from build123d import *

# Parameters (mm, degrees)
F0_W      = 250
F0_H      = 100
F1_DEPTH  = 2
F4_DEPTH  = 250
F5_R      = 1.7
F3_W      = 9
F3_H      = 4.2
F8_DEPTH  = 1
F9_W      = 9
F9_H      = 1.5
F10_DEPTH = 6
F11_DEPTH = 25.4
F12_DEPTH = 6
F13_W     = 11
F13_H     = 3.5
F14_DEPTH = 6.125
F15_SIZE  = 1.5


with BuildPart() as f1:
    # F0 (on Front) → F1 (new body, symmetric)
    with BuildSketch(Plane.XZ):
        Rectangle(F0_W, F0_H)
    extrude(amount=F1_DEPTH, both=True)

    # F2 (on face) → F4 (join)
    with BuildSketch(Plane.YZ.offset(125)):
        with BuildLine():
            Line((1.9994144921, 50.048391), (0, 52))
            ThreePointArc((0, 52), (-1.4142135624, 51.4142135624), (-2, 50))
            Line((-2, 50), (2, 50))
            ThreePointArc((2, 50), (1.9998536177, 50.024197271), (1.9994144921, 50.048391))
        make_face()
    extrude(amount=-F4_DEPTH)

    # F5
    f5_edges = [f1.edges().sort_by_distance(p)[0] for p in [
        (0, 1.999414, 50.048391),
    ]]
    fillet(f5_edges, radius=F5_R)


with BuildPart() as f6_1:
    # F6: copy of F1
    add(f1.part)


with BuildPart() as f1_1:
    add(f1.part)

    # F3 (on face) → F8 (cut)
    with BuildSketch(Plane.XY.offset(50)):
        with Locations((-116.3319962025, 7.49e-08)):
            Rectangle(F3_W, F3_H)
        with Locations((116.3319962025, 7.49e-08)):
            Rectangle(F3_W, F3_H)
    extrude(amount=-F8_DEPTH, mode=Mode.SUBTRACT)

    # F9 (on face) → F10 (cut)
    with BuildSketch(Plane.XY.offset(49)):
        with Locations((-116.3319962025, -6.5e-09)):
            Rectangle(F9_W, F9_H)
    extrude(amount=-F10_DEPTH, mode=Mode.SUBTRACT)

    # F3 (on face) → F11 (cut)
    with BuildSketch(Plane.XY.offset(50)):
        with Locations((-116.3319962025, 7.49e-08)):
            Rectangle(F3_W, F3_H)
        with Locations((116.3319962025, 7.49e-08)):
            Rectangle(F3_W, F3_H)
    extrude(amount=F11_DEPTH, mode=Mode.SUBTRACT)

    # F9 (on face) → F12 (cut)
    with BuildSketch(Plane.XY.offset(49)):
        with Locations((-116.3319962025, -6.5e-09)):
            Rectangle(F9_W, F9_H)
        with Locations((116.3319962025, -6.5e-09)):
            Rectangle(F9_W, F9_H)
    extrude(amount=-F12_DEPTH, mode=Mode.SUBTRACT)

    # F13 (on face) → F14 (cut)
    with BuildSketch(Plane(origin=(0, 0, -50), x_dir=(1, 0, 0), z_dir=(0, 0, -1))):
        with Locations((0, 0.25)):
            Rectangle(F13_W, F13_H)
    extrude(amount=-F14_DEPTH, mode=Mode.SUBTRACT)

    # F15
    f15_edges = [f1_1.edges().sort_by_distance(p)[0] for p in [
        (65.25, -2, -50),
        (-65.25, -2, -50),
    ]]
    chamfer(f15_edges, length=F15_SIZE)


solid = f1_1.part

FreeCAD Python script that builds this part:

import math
import FreeCAD as App
import Part
import Sketcher

V = App.Vector
Q = App.Units.Quantity


def edges_at(feature, points):
    """Names of the edges that pass closest to the given points."""
    edges = feature.Shape.Edges
    near = lambda p: min(range(len(edges)), key=lambda i: edges[i].distToShape(Part.Vertex(*p))[0])
    return sorted({f"Edge{near(p) + 1}" for p in points})

doc = App.newDocument("Part")
body = doc.addObject("PartDesign::Body", "Body")

# Sketch on XZ plane
sketch1 = body.newObject("Sketcher::SketchObject", "Sketch")
sketch1.AttachmentSupport = (doc.getObject("XZ_Plane"), [""])
sketch1.MapMode = "FlatFace"
sketch1.addGeometry(Part.LineSegment(V(-125, 50, 0), V(-125, -50, 0)), False)
sketch1.addGeometry(Part.LineSegment(V(-125, -50, 0), V(125, -50, 0)), False)
sketch1.addGeometry(Part.LineSegment(V(125, -50, 0), V(125, 50, 0)), False)
sketch1.addGeometry(Part.LineSegment(V(125, 50, 0), V(-125, 50, 0)), False)
sketch1.addConstraint(Sketcher.Constraint("Coincident", 0, 2, 1, 1))
sketch1.addConstraint(Sketcher.Constraint("Coincident", 1, 2, 2, 1))
sketch1.addConstraint(Sketcher.Constraint("Coincident", 2, 2, 3, 1))
sketch1.addConstraint(Sketcher.Constraint("Coincident", 3, 2, 0, 1))
sketch1.addConstraint(Sketcher.Constraint("Vertical", 0))
sketch1.addConstraint(Sketcher.Constraint("Horizontal", 1))
sketch1.addConstraint(Sketcher.Constraint("Vertical", 2))
sketch1.addConstraint(Sketcher.Constraint("Horizontal", 3))
sketch1.addConstraint(Sketcher.Constraint("Symmetric", 0, 2, 2, 2, -1, 1))
sketch1.addConstraint(Sketcher.Constraint("DistanceX", 1, 1, 1, 2, Q("250 mm")))
sketch1.addConstraint(Sketcher.Constraint("DistanceY", 0, 2, 0, 1, Q("100 mm")))
pad1 = body.newObject("PartDesign::Pad", "Pad")
pad1.Profile = sketch1
pad1.Length = 4
pad1.Midplane = True

# Sketch on YZ plane
sketch2 = body.newObject("Sketcher::SketchObject", "Sketch001")
sketch2.AttachmentSupport = (doc.getObject("YZ_Plane"), [""])
sketch2.MapMode = "FlatFace"
sketch2.AttachmentOffset = App.Placement(V(0, 0, 125), App.Rotation())
sketch2.addGeometry(Part.LineSegment(V(1.999, 50.048, 0), V(0, 52, 0)), False)
sketch2.addGeometry(Part.ArcOfCircle(Part.Circle(V(0, 50, 0), V(0, 0, 1), 2), math.radians(90), math.radians(180)), False)
sketch2.addGeometry(Part.LineSegment(V(-2, 50, 0), V(2, 50, 0)), False)
sketch2.addGeometry(Part.ArcOfCircle(Part.Circle(V(0, 50, 0), V(0, 0, 1), 2), math.radians(0), math.radians(1.39)), False)
sketch2.addConstraint(Sketcher.Constraint("Coincident", 0, 2, 1, 1))
sketch2.addConstraint(Sketcher.Constraint("Coincident", 1, 2, 2, 1))
sketch2.addConstraint(Sketcher.Constraint("Coincident", 2, 2, 3, 1))
sketch2.addConstraint(Sketcher.Constraint("Coincident", 3, 2, 0, 1))
sketch2.addConstraint(Sketcher.Constraint("Horizontal", 2))
sketch2.addConstraint(Sketcher.Constraint("Coincident", 3, 3, 1, 3))
sketch2.addConstraint(Sketcher.Constraint("Equal", 1, 3))
sketch2.addConstraint(Sketcher.Constraint("PointOnObject", 1, 3, -2))
sketch2.addConstraint(Sketcher.Constraint("PointOnObject", 0, 2, -2))
sketch2.addConstraint(Sketcher.Constraint("Horizontal", 3, 3, 1, 2))
sketch2.addConstraint(Sketcher.Constraint("Radius", 1, Q("2 mm")))
sketch2.addConstraint(Sketcher.Constraint("DistanceY", -1, 1, 1, 3, Q("50 mm")))
sketch2.addConstraint(Sketcher.Constraint("Distance", 0, Q("2.794 mm")))
pad2 = body.newObject("PartDesign::Pad", "Pad001")
pad2.Profile = sketch2
pad2.Length = 250
pad2.Reversed = True
doc.recompute()

fillet = body.newObject("PartDesign::Fillet", "Fillet")
fillet.Base = (pad2, edges_at(pad2, [(0, 1.999, 50.048)]))
fillet.Radius = 1.7
body2 = doc.addObject("PartDesign::Body", "Body001")
doc.recompute()

body2.BaseFeature = body
doc.recompute()

# Sketch on XY plane
sketch3 = body.newObject("Sketcher::SketchObject", "Sketch002")
sketch3.AttachmentSupport = (doc.getObject("XY_Plane"), [""])
sketch3.MapMode = "FlatFace"
sketch3.AttachmentOffset = App.Placement(V(0, 0, 50), App.Rotation())
sketch3.addGeometry(Part.LineSegment(V(-120.8, 2.1, 0), V(-120.8, -2.1, 0)), False)
sketch3.addGeometry(Part.LineSegment(V(-120.8, -2.1, 0), V(-111.8, -2.1, 0)), False)
sketch3.addGeometry(Part.LineSegment(V(-111.8, -2.1, 0), V(-111.8, 2.1, 0)), False)
sketch3.addGeometry(Part.LineSegment(V(-111.8, 2.1, 0), V(-120.8, 2.1, 0)), False)
sketch3.addGeometry(Part.LineSegment(V(111.8, 2.1, 0), V(111.8, -2.1, 0)), False)
sketch3.addGeometry(Part.LineSegment(V(111.8, -2.1, 0), V(120.8, -2.1, 0)), False)
sketch3.addGeometry(Part.LineSegment(V(120.8, -2.1, 0), V(120.8, 2.1, 0)), False)
sketch3.addGeometry(Part.LineSegment(V(120.8, 2.1, 0), V(111.8, 2.1, 0)), False)
sketch3.addConstraint(Sketcher.Constraint("Coincident", 0, 2, 1, 1))
sketch3.addConstraint(Sketcher.Constraint("Coincident", 1, 2, 2, 1))
sketch3.addConstraint(Sketcher.Constraint("Coincident", 2, 2, 3, 1))
sketch3.addConstraint(Sketcher.Constraint("Coincident", 3, 2, 0, 1))
sketch3.addConstraint(Sketcher.Constraint("Coincident", 4, 2, 5, 1))
sketch3.addConstraint(Sketcher.Constraint("Coincident", 5, 2, 6, 1))
sketch3.addConstraint(Sketcher.Constraint("Coincident", 6, 2, 7, 1))
sketch3.addConstraint(Sketcher.Constraint("Coincident", 7, 2, 4, 1))
sketch3.addConstraint(Sketcher.Constraint("Vertical", 0))
sketch3.addConstraint(Sketcher.Constraint("Horizontal", 1))
sketch3.addConstraint(Sketcher.Constraint("Vertical", 2))
sketch3.addConstraint(Sketcher.Constraint("Horizontal", 3))
sketch3.addConstraint(Sketcher.Constraint("Vertical", 4))
sketch3.addConstraint(Sketcher.Constraint("Horizontal", 5))
sketch3.addConstraint(Sketcher.Constraint("Vertical", 6))
sketch3.addConstraint(Sketcher.Constraint("Horizontal", 7))
sketch3.addConstraint(Sketcher.Constraint("Symmetric", 2, 2, 4, 2, -1, 1))
sketch3.addConstraint(Sketcher.Constraint("Symmetric", 0, 2, 6, 2, -1, 1))
sketch3.addConstraint(Sketcher.Constraint("Horizontal", 1, 2, 4, 2))
sketch3.addConstraint(Sketcher.Constraint("DistanceX", 1, 1, 1, 2, Q("9 mm")))
sketch3.addConstraint(Sketcher.Constraint("DistanceY", 0, 2, 0, 1, Q("4.2 mm")))
sketch3.addConstraint(Sketcher.Constraint("DistanceX", 0, 2, -1, 1, Q("120.831996 mm")))
pocket1 = body.newObject("PartDesign::Pocket", "Pocket")
pocket1.Profile = sketch3
pocket1.Length = 1

# Sketch on XY plane
sketch4 = body.newObject("Sketcher::SketchObject", "Sketch003")
sketch4.AttachmentSupport = (doc.getObject("XY_Plane"), [""])
sketch4.MapMode = "FlatFace"
sketch4.AttachmentOffset = App.Placement(V(0, 0, 49), App.Rotation())
sketch4.addGeometry(Part.LineSegment(V(-120.8, 0.7, 0), V(-120.8, -0.8, 0)), False)
sketch4.addGeometry(Part.LineSegment(V(-120.8, -0.8, 0), V(-111.8, -0.8, 0)), False)
sketch4.addGeometry(Part.LineSegment(V(-111.8, -0.8, 0), V(-111.8, 0.7, 0)), False)
sketch4.addGeometry(Part.LineSegment(V(-111.8, 0.7, 0), V(-120.8, 0.7, 0)), False)
sketch4.addConstraint(Sketcher.Constraint("Coincident", 0, 2, 1, 1))
sketch4.addConstraint(Sketcher.Constraint("Coincident", 1, 2, 2, 1))
sketch4.addConstraint(Sketcher.Constraint("Coincident", 2, 2, 3, 1))
sketch4.addConstraint(Sketcher.Constraint("Coincident", 3, 2, 0, 1))
sketch4.addConstraint(Sketcher.Constraint("Vertical", 0))
sketch4.addConstraint(Sketcher.Constraint("Horizontal", 1))
sketch4.addConstraint(Sketcher.Constraint("Vertical", 2))
sketch4.addConstraint(Sketcher.Constraint("Horizontal", 3))
sketch4.addConstraint(Sketcher.Constraint("DistanceX", 1, 1, 1, 2, Q("9 mm")))
sketch4.addConstraint(Sketcher.Constraint("DistanceY", 0, 2, 0, 1, Q("1.5 mm")))
sketch4.addConstraint(Sketcher.Constraint("DistanceY", 0, 2, -1, 1, Q("0.75 mm")))
sketch4.addConstraint(Sketcher.Constraint("DistanceX", 0, 2, -1, 1, Q("120.831996 mm")))
pocket2 = body.newObject("PartDesign::Pocket", "Pocket001")
pocket2.Profile = sketch4
pocket2.Length = 6

# Sketch on XY plane
sketch5 = body.newObject("Sketcher::SketchObject", "Sketch004")
sketch5.AttachmentSupport = (doc.getObject("XY_Plane"), [""])
sketch5.MapMode = "FlatFace"
sketch5.AttachmentOffset = App.Placement(V(0, 0, 50), App.Rotation())
sketch5.addGeometry(Part.LineSegment(V(-120.8, 2.1, 0), V(-120.8, -2.1, 0)), False)
sketch5.addGeometry(Part.LineSegment(V(-120.8, -2.1, 0), V(-111.8, -2.1, 0)), False)
sketch5.addGeometry(Part.LineSegment(V(-111.8, -2.1, 0), V(-111.8, 2.1, 0)), False)
sketch5.addGeometry(Part.LineSegment(V(-111.8, 2.1, 0), V(-120.8, 2.1, 0)), False)
sketch5.addGeometry(Part.LineSegment(V(111.8, 2.1, 0), V(111.8, -2.1, 0)), False)
sketch5.addGeometry(Part.LineSegment(V(111.8, -2.1, 0), V(120.8, -2.1, 0)), False)
sketch5.addGeometry(Part.LineSegment(V(120.8, -2.1, 0), V(120.8, 2.1, 0)), False)
sketch5.addGeometry(Part.LineSegment(V(120.8, 2.1, 0), V(111.8, 2.1, 0)), False)
sketch5.addConstraint(Sketcher.Constraint("Coincident", 0, 2, 1, 1))
sketch5.addConstraint(Sketcher.Constraint("Coincident", 1, 2, 2, 1))
sketch5.addConstraint(Sketcher.Constraint("Coincident", 2, 2, 3, 1))
sketch5.addConstraint(Sketcher.Constraint("Coincident", 3, 2, 0, 1))
sketch5.addConstraint(Sketcher.Constraint("Coincident", 4, 2, 5, 1))
sketch5.addConstraint(Sketcher.Constraint("Coincident", 5, 2, 6, 1))
sketch5.addConstraint(Sketcher.Constraint("Coincident", 6, 2, 7, 1))
sketch5.addConstraint(Sketcher.Constraint("Coincident", 7, 2, 4, 1))
sketch5.addConstraint(Sketcher.Constraint("Vertical", 0))
sketch5.addConstraint(Sketcher.Constraint("Horizontal", 1))
sketch5.addConstraint(Sketcher.Constraint("Vertical", 2))
sketch5.addConstraint(Sketcher.Constraint("Horizontal", 3))
sketch5.addConstraint(Sketcher.Constraint("Vertical", 4))
sketch5.addConstraint(Sketcher.Constraint("Horizontal", 5))
sketch5.addConstraint(Sketcher.Constraint("Vertical", 6))
sketch5.addConstraint(Sketcher.Constraint("Horizontal", 7))
sketch5.addConstraint(Sketcher.Constraint("Symmetric", 2, 2, 4, 2, -1, 1))
sketch5.addConstraint(Sketcher.Constraint("Symmetric", 0, 2, 6, 2, -1, 1))
sketch5.addConstraint(Sketcher.Constraint("Horizontal", 1, 2, 4, 2))
sketch5.addConstraint(Sketcher.Constraint("DistanceX", 1, 1, 1, 2, Q("9 mm")))
sketch5.addConstraint(Sketcher.Constraint("DistanceY", 0, 2, 0, 1, Q("4.2 mm")))
sketch5.addConstraint(Sketcher.Constraint("DistanceX", 0, 2, -1, 1, Q("120.831996 mm")))
pocket3 = body.newObject("PartDesign::Pocket", "Pocket002")
pocket3.Profile = sketch5
pocket3.Length = 25.4
pocket3.Reversed = True

# Sketch on XY plane
sketch6 = body.newObject("Sketcher::SketchObject", "Sketch005")
sketch6.AttachmentSupport = (doc.getObject("XY_Plane"), [""])
sketch6.MapMode = "FlatFace"
sketch6.AttachmentOffset = App.Placement(V(0, 0, 49), App.Rotation())
sketch6.addGeometry(Part.LineSegment(V(-120.8, 0.7, 0), V(-120.8, -0.8, 0)), False)
sketch6.addGeometry(Part.LineSegment(V(-120.8, -0.8, 0), V(-111.8, -0.8, 0)), False)
sketch6.addGeometry(Part.LineSegment(V(-111.8, -0.8, 0), V(-111.8, 0.7, 0)), False)
sketch6.addGeometry(Part.LineSegment(V(-111.8, 0.7, 0), V(-120.8, 0.7, 0)), False)
sketch6.addGeometry(Part.LineSegment(V(111.8, 0.7, 0), V(111.8, -0.8, 0)), False)
sketch6.addGeometry(Part.LineSegment(V(111.8, -0.8, 0), V(120.8, -0.8, 0)), False)
sketch6.addGeometry(Part.LineSegment(V(120.8, -0.8, 0), V(120.8, 0.7, 0)), False)
sketch6.addGeometry(Part.LineSegment(V(120.8, 0.7, 0), V(111.8, 0.7, 0)), False)
sketch6.addConstraint(Sketcher.Constraint("Coincident", 0, 2, 1, 1))
sketch6.addConstraint(Sketcher.Constraint("Coincident", 1, 2, 2, 1))
sketch6.addConstraint(Sketcher.Constraint("Coincident", 2, 2, 3, 1))
sketch6.addConstraint(Sketcher.Constraint("Coincident", 3, 2, 0, 1))
sketch6.addConstraint(Sketcher.Constraint("Coincident", 4, 2, 5, 1))
sketch6.addConstraint(Sketcher.Constraint("Coincident", 5, 2, 6, 1))
sketch6.addConstraint(Sketcher.Constraint("Coincident", 6, 2, 7, 1))
sketch6.addConstraint(Sketcher.Constraint("Coincident", 7, 2, 4, 1))
sketch6.addConstraint(Sketcher.Constraint("Vertical", 0))
sketch6.addConstraint(Sketcher.Constraint("Horizontal", 1))
sketch6.addConstraint(Sketcher.Constraint("Vertical", 2))
sketch6.addConstraint(Sketcher.Constraint("Horizontal", 3))
sketch6.addConstraint(Sketcher.Constraint("Vertical", 4))
sketch6.addConstraint(Sketcher.Constraint("Horizontal", 5))
sketch6.addConstraint(Sketcher.Constraint("Vertical", 6))
sketch6.addConstraint(Sketcher.Constraint("Horizontal", 7))
sketch6.addConstraint(Sketcher.Constraint("Symmetric", 2, 2, 4, 2, -1, 1))
sketch6.addConstraint(Sketcher.Constraint("Symmetric", 0, 2, 6, 2, -1, 1))
sketch6.addConstraint(Sketcher.Constraint("Horizontal", 1, 2, 4, 2))
sketch6.addConstraint(Sketcher.Constraint("DistanceX", 1, 1, 1, 2, Q("9 mm")))
sketch6.addConstraint(Sketcher.Constraint("DistanceY", 0, 2, 0, 1, Q("1.5 mm")))
sketch6.addConstraint(Sketcher.Constraint("DistanceX", 0, 2, -1, 1, Q("120.831996 mm")))
pocket4 = body.newObject("PartDesign::Pocket", "Pocket003")
pocket4.Profile = sketch6
pocket4.Length = 6

# Sketch on XY plane
sketch7 = body.newObject("Sketcher::SketchObject", "Sketch006")
sketch7.AttachmentSupport = (doc.getObject("XY_Plane"), [""])
sketch7.MapMode = "FlatFace"
sketch7.AttachmentOffset = App.Placement(V(0, 0, -50), App.Rotation())
sketch7.addGeometry(Part.LineSegment(V(-5.5, -2, 0), V(-5.5, 1.5, 0)), False)
sketch7.addGeometry(Part.LineSegment(V(-5.5, 1.5, 0), V(5.5, 1.5, 0)), False)
sketch7.addGeometry(Part.LineSegment(V(5.5, 1.5, 0), V(5.5, -2, 0)), False)
sketch7.addGeometry(Part.LineSegment(V(5.5, -2, 0), V(-5.5, -2, 0)), False)
sketch7.addConstraint(Sketcher.Constraint("Coincident", 0, 2, 1, 1))
sketch7.addConstraint(Sketcher.Constraint("Coincident", 1, 2, 2, 1))
sketch7.addConstraint(Sketcher.Constraint("Coincident", 2, 2, 3, 1))
sketch7.addConstraint(Sketcher.Constraint("Coincident", 3, 2, 0, 1))
sketch7.addConstraint(Sketcher.Constraint("Vertical", 0))
sketch7.addConstraint(Sketcher.Constraint("Horizontal", 1))
sketch7.addConstraint(Sketcher.Constraint("Vertical", 2))
sketch7.addConstraint(Sketcher.Constraint("Horizontal", 3))
sketch7.addConstraint(Sketcher.Constraint("DistanceX", 1, 1, 1, 2, Q("11 mm")))
sketch7.addConstraint(Sketcher.Constraint("DistanceY", 0, 1, 0, 2, Q("3.5 mm")))
sketch7.addConstraint(Sketcher.Constraint("DistanceY", 2, 2, -1, 1, Q("2 mm")))
sketch7.addConstraint(Sketcher.Constraint("DistanceX", 0, 2, -1, 1, Q("5.5 mm")))
pocket5 = body.newObject("PartDesign::Pocket", "Pocket004")
pocket5.Profile = sketch7
pocket5.Length = 6.125
pocket5.Reversed = True
doc.recompute()

chamfer = body.newObject("PartDesign::Chamfer", "Chamfer")
chamfer.Base = (pocket5, edges_at(pocket5, [(65.25, -2, -50), (-65.25, -2, -50)]))
chamfer.Size = 1.5
body.Visibility = False

doc.recompute()
